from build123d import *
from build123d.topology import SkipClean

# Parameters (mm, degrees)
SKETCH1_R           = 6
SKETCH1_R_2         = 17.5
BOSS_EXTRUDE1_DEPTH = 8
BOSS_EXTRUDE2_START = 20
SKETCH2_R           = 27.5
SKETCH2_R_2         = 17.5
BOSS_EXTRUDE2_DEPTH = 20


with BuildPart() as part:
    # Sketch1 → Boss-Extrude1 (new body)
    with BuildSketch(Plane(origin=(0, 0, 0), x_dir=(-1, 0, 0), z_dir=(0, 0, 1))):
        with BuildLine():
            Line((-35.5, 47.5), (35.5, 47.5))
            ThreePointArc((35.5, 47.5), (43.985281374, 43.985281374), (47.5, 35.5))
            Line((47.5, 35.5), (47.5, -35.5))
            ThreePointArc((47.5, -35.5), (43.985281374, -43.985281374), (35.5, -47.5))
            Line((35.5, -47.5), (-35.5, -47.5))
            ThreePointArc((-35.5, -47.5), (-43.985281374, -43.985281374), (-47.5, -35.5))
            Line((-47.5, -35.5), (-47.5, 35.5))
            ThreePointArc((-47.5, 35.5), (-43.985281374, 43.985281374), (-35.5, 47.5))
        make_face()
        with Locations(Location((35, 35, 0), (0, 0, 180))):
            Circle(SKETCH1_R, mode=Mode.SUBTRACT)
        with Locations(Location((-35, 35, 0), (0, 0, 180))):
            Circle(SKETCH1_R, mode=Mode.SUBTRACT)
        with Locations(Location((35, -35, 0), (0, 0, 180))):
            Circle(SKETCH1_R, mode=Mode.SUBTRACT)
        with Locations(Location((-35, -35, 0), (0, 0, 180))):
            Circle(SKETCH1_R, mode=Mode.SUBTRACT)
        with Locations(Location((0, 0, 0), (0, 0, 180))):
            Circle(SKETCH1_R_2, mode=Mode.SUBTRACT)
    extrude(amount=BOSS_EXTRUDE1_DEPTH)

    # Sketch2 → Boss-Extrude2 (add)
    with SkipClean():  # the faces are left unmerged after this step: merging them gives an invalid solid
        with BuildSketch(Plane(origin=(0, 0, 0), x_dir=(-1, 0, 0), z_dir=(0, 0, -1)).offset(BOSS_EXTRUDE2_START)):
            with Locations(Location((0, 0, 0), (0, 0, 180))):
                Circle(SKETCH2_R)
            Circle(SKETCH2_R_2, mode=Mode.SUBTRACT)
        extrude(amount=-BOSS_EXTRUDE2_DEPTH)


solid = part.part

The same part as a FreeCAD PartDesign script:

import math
import FreeCAD as App
import Part
import Sketcher
Q = App.Units.Quantity

doc = App.newDocument("Part")
body = doc.addObject("PartDesign::Body", "Body")

# Sketch on XY plane
sketch1 = body.newObject("Sketcher::SketchObject", "Sketch")
sketch1.AttachmentSupport = (doc.getObject("XY_Plane"), [""])
sketch1.MapMode = "FlatFace"
sketch1.addGeometry(Part.LineSegment(App.Vector(-36, -48, 0), App.Vector(36, -48, 0)), False)
sketch1.addGeometry(Part.ArcOfCircle(Part.Circle(App.Vector(35, -35, 0), App.Vector(0, 0, 1), 12), math.radians(-90), math.radians(0)), False)
sketch1.addGeometry(Part.LineSegment(App.Vector(48, -36, 0), App.Vector(48, 36, 0)), False)
sketch1.addGeometry(Part.ArcOfCircle(Part.Circle(App.Vector(35, 35, 0), App.Vector(0, 0, 1), 12), math.radians(0), math.radians(90)), False)
sketch1.addGeometry(Part.LineSegment(App.Vector(36, 48, 0), App.Vector(-36, 48, 0)), False)
sketch1.addGeometry(Part.ArcOfCircle(Part.Circle(App.Vector(-35, 35, 0), App.Vector(0, 0, 1), 12), math.radians(90), math.radians(180)), False)
sketch1.addGeometry(Part.LineSegment(App.Vector(-48, 36, 0), App.Vector(-48, -36, 0)), False)
sketch1.addGeometry(Part.ArcOfCircle(Part.Circle(App.Vector(-35, -35, 0), App.Vector(0, 0, 1), 12), math.radians(-180), math.radians(-90)), False)
sketch1.addGeometry(Part.Circle(App.Vector(-35, 35, 0), App.Vector(0, 0, 1), 6), False)
sketch1.addGeometry(Part.Circle(App.Vector(35, 35, 0), App.Vector(0, 0, 1), 6), False)
sketch1.addGeometry(Part.Circle(App.Vector(-35, -35, 0), App.Vector(0, 0, 1), 6), False)
sketch1.addGeometry(Part.Circle(App.Vector(0, 0, 0), App.Vector(0, 0, 1), 18), False)
sketch1.addGeometry(Part.Circle(App.Vector(35, -35, 0), App.Vector(0, 0, 1), 6), False)
sketch1.addConstraint(Sketcher.Constraint("Tangent", 0, 2, 1, 1))
sketch1.addConstraint(Sketcher.Constraint("Tangent", 1, 2, 2, 1))
sketch1.addConstraint(Sketcher.Constraint("Tangent", 2, 2, 3, 1))
sketch1.addConstraint(Sketcher.Constraint("Tangent", 3, 2, 4, 1))
sketch1.addConstraint(Sketcher.Constraint("Tangent", 4, 2, 5, 1))
sketch1.addConstraint(Sketcher.Constraint("Tangent", 5, 2, 6, 1))
sketch1.addConstraint(Sketcher.Constraint("Tangent", 6, 2, 7, 1))
sketch1.addConstraint(Sketcher.Constraint("Tangent", 7, 2, 0, 1))
sketch1.addConstraint(Sketcher.Constraint("Horizontal", 0))
sketch1.addConstraint(Sketcher.Constraint("Vertical", 2))
sketch1.addConstraint(Sketcher.Constraint("Horizontal", 4))
sketch1.addConstraint(Sketcher.Constraint("Vertical", 6))
sketch1.addConstraint(Sketcher.Constraint("Coincident", 11, 3, -1, 1))
sketch1.addConstraint(Sketcher.Constraint("Equal", 1, 3))
sketch1.addConstraint(Sketcher.Constraint("Equal", 3, 5))
sketch1.addConstraint(Sketcher.Constraint("Equal", 5, 7))
sketch1.addConstraint(Sketcher.Constraint("Equal", 8, 9))
sketch1.addConstraint(Sketcher.Constraint("Equal", 9, 10))
sketch1.addConstraint(Sketcher.Constraint("Equal", 10, 12))
sketch1.addConstraint(Sketcher.Constraint("Symmetric", 1, 3, 5, 3, -1, 1))
sketch1.addConstraint(Sketcher.Constraint("Symmetric", 9, 3, 10, 3, -1, 1))
sketch1.addConstraint(Sketcher.Constraint("Symmetric", 8, 3, 12, 3, -1, 1))
sketch1.addConstraint(Sketcher.Constraint("Symmetric", 8, 3, 9, 3, -2))
sketch1.addConstraint(Sketcher.Constraint("Equal", 4, 2))
sketch1.addConstraint(Sketcher.Constraint("Diameter", 8, Q("12 mm")))
sketch1.addConstraint(Sketcher.Constraint("Diameter", 11, Q("35 mm")))
sketch1.addConstraint(Sketcher.Constraint("Radius", 1, Q("12 mm")))
sketch1.addConstraint(Sketcher.Constraint("DistanceX", 0, 1, 0, 2, Q("71 mm")))
sketch1.addConstraint(Sketcher.Constraint("DistanceX", 8, 3, -1, 1, Q("35 mm")))
sketch1.addConstraint(Sketcher.Constraint("DistanceY", -1, 1, 8, 3, Q("35 mm")))
pad1 = body.newObject("PartDesign::Pad", "Pad")
pad1.Profile = sketch1
pad1.Length = 8

# Sketch on XY plane
sketch2 = body.newObject("Sketcher::SketchObject", "Sketch001")
sketch2.AttachmentSupport = (doc.getObject("XY_Plane"), [""])
sketch2.MapMode = "FlatFace"
sketch2.AttachmentOffset = App.Placement(App.Vector(0, 0, -20), App.Rotation())
sketch2.addGeometry(Part.Circle(App.Vector(0, 0, 0), App.Vector(0, 0, 1), 28), False)
sketch2.addGeometry(Part.Circle(App.Vector(0, 0, 0), App.Vector(0, 0, 1), 18), False)
sketch2.addConstraint(Sketcher.Constraint("Coincident", 0, 3, -1, 1))
sketch2.addConstraint(Sketcher.Constraint("Coincident", 1, 3, -1, 1))
sketch2.addConstraint(Sketcher.Constraint("Diameter", 0, Q("55 mm")))
sketch2.addConstraint(Sketcher.Constraint("Diameter", 1, Q("35 mm")))
pad2 = body.newObject("PartDesign::Pad", "Pad001")
pad2.Profile = sketch2
pad2.Length = 20

doc.recompute()
